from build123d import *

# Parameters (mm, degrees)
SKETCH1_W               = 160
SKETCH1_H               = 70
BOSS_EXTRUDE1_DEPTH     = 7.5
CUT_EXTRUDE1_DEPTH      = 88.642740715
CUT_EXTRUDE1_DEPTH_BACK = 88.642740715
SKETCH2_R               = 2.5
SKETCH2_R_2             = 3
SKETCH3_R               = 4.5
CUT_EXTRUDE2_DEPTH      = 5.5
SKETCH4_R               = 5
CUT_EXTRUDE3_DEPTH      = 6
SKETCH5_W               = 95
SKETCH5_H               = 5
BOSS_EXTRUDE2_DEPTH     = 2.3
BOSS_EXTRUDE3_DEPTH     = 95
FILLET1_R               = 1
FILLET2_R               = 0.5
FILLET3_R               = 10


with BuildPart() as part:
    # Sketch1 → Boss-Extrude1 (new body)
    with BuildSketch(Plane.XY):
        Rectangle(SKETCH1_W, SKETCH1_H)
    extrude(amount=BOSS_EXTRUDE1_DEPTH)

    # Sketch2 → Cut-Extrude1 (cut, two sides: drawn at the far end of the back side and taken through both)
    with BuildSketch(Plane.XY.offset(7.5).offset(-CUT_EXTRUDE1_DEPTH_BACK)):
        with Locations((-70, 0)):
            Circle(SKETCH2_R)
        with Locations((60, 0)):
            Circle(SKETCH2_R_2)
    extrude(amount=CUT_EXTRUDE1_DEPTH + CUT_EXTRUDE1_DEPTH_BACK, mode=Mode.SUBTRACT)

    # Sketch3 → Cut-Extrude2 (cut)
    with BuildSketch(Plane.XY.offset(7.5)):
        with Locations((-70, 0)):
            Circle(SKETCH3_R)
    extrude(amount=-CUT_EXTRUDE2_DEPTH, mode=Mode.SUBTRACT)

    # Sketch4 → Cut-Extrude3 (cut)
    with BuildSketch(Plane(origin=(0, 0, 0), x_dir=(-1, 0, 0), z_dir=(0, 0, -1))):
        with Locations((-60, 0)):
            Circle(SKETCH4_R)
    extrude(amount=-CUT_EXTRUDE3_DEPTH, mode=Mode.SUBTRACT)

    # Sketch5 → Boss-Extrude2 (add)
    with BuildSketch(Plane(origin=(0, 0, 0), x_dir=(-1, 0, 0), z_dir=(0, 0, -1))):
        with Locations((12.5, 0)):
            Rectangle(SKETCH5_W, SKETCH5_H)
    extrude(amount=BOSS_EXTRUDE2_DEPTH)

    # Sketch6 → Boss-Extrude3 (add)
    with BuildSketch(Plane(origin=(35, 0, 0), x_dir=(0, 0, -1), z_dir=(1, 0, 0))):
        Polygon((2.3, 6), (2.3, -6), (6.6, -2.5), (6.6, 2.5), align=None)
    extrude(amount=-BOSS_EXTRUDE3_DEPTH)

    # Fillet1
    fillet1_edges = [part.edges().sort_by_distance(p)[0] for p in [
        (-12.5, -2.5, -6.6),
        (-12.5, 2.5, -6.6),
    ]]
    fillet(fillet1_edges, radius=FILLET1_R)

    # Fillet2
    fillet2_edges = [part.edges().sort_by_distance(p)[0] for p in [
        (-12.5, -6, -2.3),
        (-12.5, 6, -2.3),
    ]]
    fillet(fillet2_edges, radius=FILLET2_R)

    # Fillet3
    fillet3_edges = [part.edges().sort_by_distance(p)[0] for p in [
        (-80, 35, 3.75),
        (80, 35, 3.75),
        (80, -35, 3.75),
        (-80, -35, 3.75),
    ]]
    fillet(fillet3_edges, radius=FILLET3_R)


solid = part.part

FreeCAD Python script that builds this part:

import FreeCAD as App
import Part
import Sketcher

V = App.Vector
Q = App.Units.Quantity


def edges_at(feature, points):
    """Names of the edges that pass closest to the given points."""
    edges = feature.Shape.Edges
    near = lambda p: min(range(len(edges)), key=lambda i: edges[i].distToShape(Part.Vertex(*p))[0])
    return sorted({f"Edge{near(p) + 1}" for p in points})

doc = App.newDocument("Part")
body = doc.addObject("PartDesign::Body", "Body")

# Sketch on XY plane
sketch1 = doc.addObject("Sketcher::SketchObject", "Sketch")
body.addObject(sketch1)
sketch1.AttachmentSupport = (doc.XY_Plane, [""])
sketch1.MapMode = "FlatFace"
sketch1.addGeometry([
    Part.LineSegment(V(-80, 35, 0), V(-80, -35, 0)),
    Part.LineSegment(V(-80, -35, 0), V(80, -35, 0)),
    Part.LineSegment(V(80, -35, 0), V(80, 35, 0)),
    Part.LineSegment(V(80, 35, 0), V(-80, 35, 0)),
], False)
sketch1.addConstraint([
    Sketcher.Constraint("Coincident", 0, 2, 1, 1),
    Sketcher.Constraint("Coincident", 1, 2, 2, 1),
    Sketcher.Constraint("Coincident", 2, 2, 3, 1),
    Sketcher.Constraint("Coincident", 3, 2, 0, 1),
    Sketcher.Constraint("Vertical", 0),
    Sketcher.Constraint("Horizontal", 1),
    Sketcher.Constraint("Vertical", 2),
    Sketcher.Constraint("Horizontal", 3),
    Sketcher.Constraint("Symmetric", 0, 2, 2, 2, -1, 1),
    Sketcher.Constraint("DistanceX", 1, 1, 1, 2, Q("160 mm")),
    Sketcher.Constraint("DistanceY", 0, 2, 0, 1, Q("70 mm")),
])
pad1 = doc.addObject("PartDesign::Pad", "Pad")
body.addObject(pad1)
pad1.Profile = sketch1
pad1.Length = 7.5

# Sketch on XY plane
sketch2 = doc.addObject("Sketcher::SketchObject", "Sketch001")
body.addObject(sketch2)
sketch2.AttachmentSupport = (doc.XY_Plane, [""])
sketch2.MapMode = "FlatFace"
sketch2.AttachmentOffset = App.Placement(V(0, 0, 7.5), App.Rotation())
sketch2.addGeometry([
    Part.Circle(V(-70, 0, 0), V(0, 0, 1), 2.5),
    Part.Circle(V(60, 0, 0), V(0, 0, 1), 3),
], False)
sketch2.addConstraint([
    Sketcher.Constraint("PointOnObject", 0, 3, -1),
    Sketcher.Constraint("PointOnObject", 1, 3, -1),
    Sketcher.Constraint("Diameter", 0, Q("5 mm")),
    Sketcher.Constraint("Diameter", 1, Q("6 mm")),
    Sketcher.Constraint("DistanceX", 0, 3, -1, 1, Q("70 mm")),
    Sketcher.Constraint("DistanceX", -1, 1, 1, 3, Q("60 mm")),
])
pocket1 = doc.addObject("PartDesign::Pocket", "Pocket")
body.addObject(pocket1)
pocket1.Profile = sketch2
pocket1.Type = "ThroughAll"
pocket1.Midplane = True

# Sketch on XY plane
sketch3 = doc.addObject("Sketcher::SketchObject", "Sketch002")
body.addObject(sketch3)
sketch3.AttachmentSupport = (doc.XY_Plane, [""])
sketch3.MapMode = "FlatFace"
sketch3.AttachmentOffset = App.Placement(V(0, 0, 7.5), App.Rotation())
sketch3.addGeometry(Part.Circle(V(-70, 0, 0), V(0, 0, 1), 4.5), False)
sketch3.addConstraint([
    Sketcher.Constraint("PointOnObject", 0, 3, -1),
    Sketcher.Constraint("Diameter", 0, Q("9 mm")),
    Sketcher.Constraint("DistanceX", 0, 3, -1, 1, Q("70 mm")),
])
pocket2 = doc.addObject("PartDesign::Pocket", "Pocket001")
body.addObject(pocket2)
pocket2.Profile = sketch3
pocket2.Length = 5.5

# Sketch on XY plane
sketch4 = doc.addObject("Sketcher::SketchObject", "Sketch003")
body.addObject(sketch4)
sketch4.AttachmentSupport = (doc.XY_Plane, [""])
sketch4.MapMode = "FlatFace"
sketch4.addGeometry(Part.Circle(V(60, 0, 0), V(0, 0, 1), 5), False)
sketch4.addConstraint([
    Sketcher.Constraint("PointOnObject", 0, 3, -1),
    Sketcher.Constraint("Diameter", 0, Q("10 mm")),
    Sketcher.Constraint("DistanceX", -1, 1, 0, 3, Q("60 mm")),
])
pocket3 = doc.addObject("PartDesign::Pocket", "Pocket002")
body.addObject(pocket3)
pocket3.Profile = sketch4
pocket3.Length = 6
pocket3.Reversed = True

# Sketch on XY plane
sketch5 = doc.addObject("Sketcher::SketchObject", "Sketch004")
body.addObject(sketch5)
sketch5.AttachmentSupport = (doc.XY_Plane, [""])
sketch5.MapMode = "FlatFace"
sketch5.addGeometry([
    Part.LineSegment(V(35, 2, 0), V(35, -2, 0)),
    Part.LineSegment(V(35, -2, 0), V(-60, -2, 0)),
    Part.LineSegment(V(-60, -2, 0), V(-60, 2, 0)),
    Part.LineSegment(V(-60, 2, 0), V(35, 2, 0)),
], False)
sketch5.addConstraint([
    Sketcher.Constraint("Coincident", 0, 2, 1, 1),
    Sketcher.Constraint("Coincident", 1, 2, 2, 1),
    Sketcher.Constraint("Coincident", 2, 2, 3, 1),
    Sketcher.Constraint("Coincident", 3, 2, 0, 1),
    Sketcher.Constraint("Vertical", 0),
    Sketcher.Constraint("Horizontal", 1),
    Sketcher.Constraint("Vertical", 2),
    Sketcher.Constraint("Horizontal", 3),
    Sketcher.Constraint("DistanceX", 1, 2, 1, 1, Q("95 mm")),
    Sketcher.Constraint("DistanceY", 0, 2, 0, 1, Q("5 mm")),
    Sketcher.Constraint("DistanceX", -1, 1, 0, 2, Q("35 mm")),
    Sketcher.Constraint("DistanceY", 0, 2, -1, 1, Q("2.5 mm")),
])
pad2 = doc.addObject("PartDesign::Pad", "Pad001")
body.addObject(pad2)
pad2.Profile = sketch5
pad2.Length = 2.3
pad2.Reversed = True

# Sketch on YZ plane
sketch6 = doc.addObject("Sketcher::SketchObject", "Sketch005")
body.addObject(sketch6)
sketch6.AttachmentSupport = (doc.YZ_Plane, [""])
sketch6.MapMode = "FlatFace"
sketch6.AttachmentOffset = App.Placement(V(0, 0, 35), App.Rotation())
sketch6.addGeometry([
    Part.LineSegment(V(6, -2, 0), V(-6, -2, 0)),
    Part.LineSegment(V(-6, -2, 0), V(-2, -7, 0)),
    Part.LineSegment(V(-2, -7, 0), V(2, -7, 0)),
    Part.LineSegment(V(2, -7, 0), V(6, -2, 0)),
], False)
sketch6.addConstraint([
    Sketcher.Constraint("Coincident", 0, 2, 1, 1),
    Sketcher.Constraint("Coincident", 1, 2, 2, 1),
    Sketcher.Constraint("Coincident", 2, 2, 3, 1),
    Sketcher.Constraint("Coincident", 3, 2, 0, 1),
    Sketcher.Constraint("Horizontal", 0),
    Sketcher.Constraint("Horizontal", 2),
    Sketcher.Constraint("Equal", 1, 3),
    Sketcher.Constraint("DistanceX", 0, 2, 0, 1, Q("12 mm")),
    Sketcher.Constraint("DistanceX", 2, 1, 2, 2, Q("5 mm")),
    Sketcher.Constraint("DistanceX", 0, 2, -1, 1, Q("6 mm")),
    Sketcher.Constraint("DistanceY", 0, 2, -1, 1, Q("2.3 mm")),
    Sketcher.Constraint("DistanceY", 1, 2, -1, 1, Q("6.6 mm")),
])
pad3 = doc.addObject("PartDesign::Pad", "Pad002")
body.addObject(pad3)
pad3.Profile = sketch6
pad3.Length = 95
pad3.Reversed = True
doc.recompute()

fillet = doc.addObject("PartDesign::Fillet", "Fillet")
body.addObject(fillet)
fillet.Base = (pad3, edges_at(pad3, [(-12.5, -2.5, -6.6), (-12.5, 2.5, -6.6)]))
fillet.Radius = 1
doc.recompute()

fillet2 = doc.addObject("PartDesign::Fillet", "Fillet001")
body.addObject(fillet2)
fillet2.Base = (fillet, edges_at(fillet, [(-12.5, -6, -2.3), (-12.5, 6, -2.3)]))
fillet2.Radius = 0.5
doc.recompute()

fillet3 = doc.addObject("PartDesign::Fillet", "Fillet002")
body.addObject(fillet3)
fillet3.Base = (fillet2, edges_at(fillet2, [
    (-80, 35, 3.75),
    (80, 35, 3.75),
    (80, -35, 3.75),
    (-80, -35, 3.75),
]))
fillet3.Radius = 10

doc.recompute()
